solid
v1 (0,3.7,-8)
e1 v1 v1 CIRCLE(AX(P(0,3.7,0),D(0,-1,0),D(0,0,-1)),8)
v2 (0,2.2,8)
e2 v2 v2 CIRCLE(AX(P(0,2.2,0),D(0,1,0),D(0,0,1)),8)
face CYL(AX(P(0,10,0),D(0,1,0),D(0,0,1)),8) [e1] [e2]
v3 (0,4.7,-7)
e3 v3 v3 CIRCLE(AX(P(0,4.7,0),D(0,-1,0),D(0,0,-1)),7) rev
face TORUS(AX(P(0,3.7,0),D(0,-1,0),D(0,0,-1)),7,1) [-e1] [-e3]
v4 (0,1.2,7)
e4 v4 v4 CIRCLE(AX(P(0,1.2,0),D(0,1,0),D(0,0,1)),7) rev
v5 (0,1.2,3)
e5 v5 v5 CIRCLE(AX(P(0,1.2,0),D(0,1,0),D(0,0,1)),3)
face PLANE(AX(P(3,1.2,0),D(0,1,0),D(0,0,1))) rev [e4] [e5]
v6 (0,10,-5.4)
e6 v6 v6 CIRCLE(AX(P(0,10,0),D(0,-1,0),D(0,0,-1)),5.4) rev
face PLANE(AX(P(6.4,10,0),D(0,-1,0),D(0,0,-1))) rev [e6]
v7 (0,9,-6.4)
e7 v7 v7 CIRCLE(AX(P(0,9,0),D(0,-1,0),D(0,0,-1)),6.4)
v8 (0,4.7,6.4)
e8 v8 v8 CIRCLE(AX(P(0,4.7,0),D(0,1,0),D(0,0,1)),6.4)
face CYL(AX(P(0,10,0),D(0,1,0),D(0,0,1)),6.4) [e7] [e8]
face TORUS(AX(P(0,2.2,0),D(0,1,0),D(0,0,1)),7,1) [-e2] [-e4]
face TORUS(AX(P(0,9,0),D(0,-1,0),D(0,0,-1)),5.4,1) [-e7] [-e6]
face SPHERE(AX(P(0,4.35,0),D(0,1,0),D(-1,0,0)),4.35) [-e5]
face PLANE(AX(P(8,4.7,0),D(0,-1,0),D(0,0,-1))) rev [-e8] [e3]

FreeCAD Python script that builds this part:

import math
import FreeCAD as App
import Part
import Sketcher
from FreeCAD import Vector
Q = App.Units.Quantity


def edges_at(feature, points):
    """Names of the edges that pass closest to the given points."""
    edges = feature.Shape.Edges
    near = lambda p: min(range(len(edges)), key=lambda i: edges[i].distToShape(Part.Vertex(*p))[0])
    return sorted({f"Edge{near(p) + 1}" for p in points})

doc = App.newDocument("Part")
params = doc.addObject("Spreadsheet::Sheet", "Params")
for row, (alias, value) in enumerate([
    ("sketch1_width", "5 mm"),
    ("sketch1_height", "10 mm"),
    ("sketch1_radius", "4.35 mm"),
    ("sketch1_width2", "1.6 mm"),
    ("sketch1_width3", "6.4 mm"),
    ("revolution_angle", "360 deg"),
    ("fillet_radius", "1 mm"),
], start=1):
    params.set(f"A{row}", alias)
    params.set(f"B{row}", "=" + value)
    params.setAlias(f"B{row}", alias)

body = doc.addObject("PartDesign::Body", "Body")

# Sketch on XY plane
sketch1 = doc.addObject("Sketcher::SketchObject", "Sketch")
body.addObject(sketch1)
sketch1.AttachmentSupport = (doc.XY_Plane, [""])
sketch1.MapMode = "FlatFace"
sketch1.addGeometry([
    Part.LineSegment(Vector(3, 1.2, 0), Vector(8, 1.2, 0)),  # 0
    Part.LineSegment(Vector(8, 1.2, 0), Vector(8, 4.7, 0)),  # 1
    Part.LineSegment(Vector(8, 4.7, 0), Vector(6.4, 4.7, 0)),  # 2
    Part.LineSegment(Vector(6.4, 4.7, 0), Vector(6.4, 10, 0)),  # 3
    Part.LineSegment(Vector(6.4, 10, 0), Vector(0, 10, 0)),  # 4
    Part.LineSegment(Vector(0, 10, 0), Vector(0, 0, 0)),  # 5
    Part.ArcOfCircle(Part.Circle(Vector(0, 4.4, 0), Vector(0, 0, 1), 4.4), math.radians(-90), math.radians(-46)),  # 6
], False)
sketch1.addConstraint([
    Sketcher.Constraint("Coincident", 0, 2, 1, 1),
    Sketcher.Constraint("Coincident", 1, 2, 2, 1),
    Sketcher.Constraint("Coincident", 2, 2, 3, 1),
    Sketcher.Constraint("Coincident", 3, 2, 4, 1),
    Sketcher.Constraint("Coincident", 4, 2, 5, 1),
    Sketcher.Constraint("Coincident", 5, 2, 6, 1),
    Sketcher.Constraint("Coincident", 6, 2, 0, 1),
    Sketcher.Constraint("Horizontal", 0),
    Sketcher.Constraint("Vertical", 1),
    Sketcher.Constraint("Horizontal", 2),
    Sketcher.Constraint("Vertical", 3),
    Sketcher.Constraint("Horizontal", 4),
    Sketcher.Constraint("Vertical", 5),
    Sketcher.Constraint("Coincident", 5, 2, -1, 1),
    Sketcher.Constraint("PointOnObject", 6, 3, -2),
    Sketcher.Constraint("DistanceX", 0, 1, 0, 2, Q("5 mm")),
    Sketcher.Constraint("DistanceY", 5, 2, 5, 1, Q("10 mm")),
    Sketcher.Constraint("Radius", 6, Q("4.35 mm")),
    Sketcher.Constraint("DistanceX", 2, 2, 2, 1, Q("1.6 mm")),
    Sketcher.Constraint("DistanceX", 4, 2, 4, 1, Q("6.4 mm")),
    Sketcher.Constraint("DistanceY", 1, 1, 1, 2, Q("3.5 mm")),
])
sketch1.setExpression("Constraints[15]", "Params.sketch1_width")
sketch1.setExpression("Constraints[16]", "Params.sketch1_height")
sketch1.setExpression("Constraints[17]", "Params.sketch1_radius")
sketch1.setExpression("Constraints[18]", "Params.sketch1_width2")
sketch1.setExpression("Constraints[19]", "Params.sketch1_width3")
revolution = doc.addObject("PartDesign::Revolution", "Revolution")
body.addObject(revolution)
revolution.Profile = sketch1
revolution.ReferenceAxis = (sketch1, ["V_Axis"])
revolution.setExpression("Angle", "Params.revolution_angle")
doc.recompute()

fillet = doc.addObject("PartDesign::Fillet", "Fillet")
body.addObject(fillet)
fillet.Base = (revolution, edges_at(revolution, [(0, 10, -6.4), (0, 4.7, -8), (0, 1.2, -8)]))
fillet.setExpression("Radius", "Params.fillet_radius")

doc.recompute()
